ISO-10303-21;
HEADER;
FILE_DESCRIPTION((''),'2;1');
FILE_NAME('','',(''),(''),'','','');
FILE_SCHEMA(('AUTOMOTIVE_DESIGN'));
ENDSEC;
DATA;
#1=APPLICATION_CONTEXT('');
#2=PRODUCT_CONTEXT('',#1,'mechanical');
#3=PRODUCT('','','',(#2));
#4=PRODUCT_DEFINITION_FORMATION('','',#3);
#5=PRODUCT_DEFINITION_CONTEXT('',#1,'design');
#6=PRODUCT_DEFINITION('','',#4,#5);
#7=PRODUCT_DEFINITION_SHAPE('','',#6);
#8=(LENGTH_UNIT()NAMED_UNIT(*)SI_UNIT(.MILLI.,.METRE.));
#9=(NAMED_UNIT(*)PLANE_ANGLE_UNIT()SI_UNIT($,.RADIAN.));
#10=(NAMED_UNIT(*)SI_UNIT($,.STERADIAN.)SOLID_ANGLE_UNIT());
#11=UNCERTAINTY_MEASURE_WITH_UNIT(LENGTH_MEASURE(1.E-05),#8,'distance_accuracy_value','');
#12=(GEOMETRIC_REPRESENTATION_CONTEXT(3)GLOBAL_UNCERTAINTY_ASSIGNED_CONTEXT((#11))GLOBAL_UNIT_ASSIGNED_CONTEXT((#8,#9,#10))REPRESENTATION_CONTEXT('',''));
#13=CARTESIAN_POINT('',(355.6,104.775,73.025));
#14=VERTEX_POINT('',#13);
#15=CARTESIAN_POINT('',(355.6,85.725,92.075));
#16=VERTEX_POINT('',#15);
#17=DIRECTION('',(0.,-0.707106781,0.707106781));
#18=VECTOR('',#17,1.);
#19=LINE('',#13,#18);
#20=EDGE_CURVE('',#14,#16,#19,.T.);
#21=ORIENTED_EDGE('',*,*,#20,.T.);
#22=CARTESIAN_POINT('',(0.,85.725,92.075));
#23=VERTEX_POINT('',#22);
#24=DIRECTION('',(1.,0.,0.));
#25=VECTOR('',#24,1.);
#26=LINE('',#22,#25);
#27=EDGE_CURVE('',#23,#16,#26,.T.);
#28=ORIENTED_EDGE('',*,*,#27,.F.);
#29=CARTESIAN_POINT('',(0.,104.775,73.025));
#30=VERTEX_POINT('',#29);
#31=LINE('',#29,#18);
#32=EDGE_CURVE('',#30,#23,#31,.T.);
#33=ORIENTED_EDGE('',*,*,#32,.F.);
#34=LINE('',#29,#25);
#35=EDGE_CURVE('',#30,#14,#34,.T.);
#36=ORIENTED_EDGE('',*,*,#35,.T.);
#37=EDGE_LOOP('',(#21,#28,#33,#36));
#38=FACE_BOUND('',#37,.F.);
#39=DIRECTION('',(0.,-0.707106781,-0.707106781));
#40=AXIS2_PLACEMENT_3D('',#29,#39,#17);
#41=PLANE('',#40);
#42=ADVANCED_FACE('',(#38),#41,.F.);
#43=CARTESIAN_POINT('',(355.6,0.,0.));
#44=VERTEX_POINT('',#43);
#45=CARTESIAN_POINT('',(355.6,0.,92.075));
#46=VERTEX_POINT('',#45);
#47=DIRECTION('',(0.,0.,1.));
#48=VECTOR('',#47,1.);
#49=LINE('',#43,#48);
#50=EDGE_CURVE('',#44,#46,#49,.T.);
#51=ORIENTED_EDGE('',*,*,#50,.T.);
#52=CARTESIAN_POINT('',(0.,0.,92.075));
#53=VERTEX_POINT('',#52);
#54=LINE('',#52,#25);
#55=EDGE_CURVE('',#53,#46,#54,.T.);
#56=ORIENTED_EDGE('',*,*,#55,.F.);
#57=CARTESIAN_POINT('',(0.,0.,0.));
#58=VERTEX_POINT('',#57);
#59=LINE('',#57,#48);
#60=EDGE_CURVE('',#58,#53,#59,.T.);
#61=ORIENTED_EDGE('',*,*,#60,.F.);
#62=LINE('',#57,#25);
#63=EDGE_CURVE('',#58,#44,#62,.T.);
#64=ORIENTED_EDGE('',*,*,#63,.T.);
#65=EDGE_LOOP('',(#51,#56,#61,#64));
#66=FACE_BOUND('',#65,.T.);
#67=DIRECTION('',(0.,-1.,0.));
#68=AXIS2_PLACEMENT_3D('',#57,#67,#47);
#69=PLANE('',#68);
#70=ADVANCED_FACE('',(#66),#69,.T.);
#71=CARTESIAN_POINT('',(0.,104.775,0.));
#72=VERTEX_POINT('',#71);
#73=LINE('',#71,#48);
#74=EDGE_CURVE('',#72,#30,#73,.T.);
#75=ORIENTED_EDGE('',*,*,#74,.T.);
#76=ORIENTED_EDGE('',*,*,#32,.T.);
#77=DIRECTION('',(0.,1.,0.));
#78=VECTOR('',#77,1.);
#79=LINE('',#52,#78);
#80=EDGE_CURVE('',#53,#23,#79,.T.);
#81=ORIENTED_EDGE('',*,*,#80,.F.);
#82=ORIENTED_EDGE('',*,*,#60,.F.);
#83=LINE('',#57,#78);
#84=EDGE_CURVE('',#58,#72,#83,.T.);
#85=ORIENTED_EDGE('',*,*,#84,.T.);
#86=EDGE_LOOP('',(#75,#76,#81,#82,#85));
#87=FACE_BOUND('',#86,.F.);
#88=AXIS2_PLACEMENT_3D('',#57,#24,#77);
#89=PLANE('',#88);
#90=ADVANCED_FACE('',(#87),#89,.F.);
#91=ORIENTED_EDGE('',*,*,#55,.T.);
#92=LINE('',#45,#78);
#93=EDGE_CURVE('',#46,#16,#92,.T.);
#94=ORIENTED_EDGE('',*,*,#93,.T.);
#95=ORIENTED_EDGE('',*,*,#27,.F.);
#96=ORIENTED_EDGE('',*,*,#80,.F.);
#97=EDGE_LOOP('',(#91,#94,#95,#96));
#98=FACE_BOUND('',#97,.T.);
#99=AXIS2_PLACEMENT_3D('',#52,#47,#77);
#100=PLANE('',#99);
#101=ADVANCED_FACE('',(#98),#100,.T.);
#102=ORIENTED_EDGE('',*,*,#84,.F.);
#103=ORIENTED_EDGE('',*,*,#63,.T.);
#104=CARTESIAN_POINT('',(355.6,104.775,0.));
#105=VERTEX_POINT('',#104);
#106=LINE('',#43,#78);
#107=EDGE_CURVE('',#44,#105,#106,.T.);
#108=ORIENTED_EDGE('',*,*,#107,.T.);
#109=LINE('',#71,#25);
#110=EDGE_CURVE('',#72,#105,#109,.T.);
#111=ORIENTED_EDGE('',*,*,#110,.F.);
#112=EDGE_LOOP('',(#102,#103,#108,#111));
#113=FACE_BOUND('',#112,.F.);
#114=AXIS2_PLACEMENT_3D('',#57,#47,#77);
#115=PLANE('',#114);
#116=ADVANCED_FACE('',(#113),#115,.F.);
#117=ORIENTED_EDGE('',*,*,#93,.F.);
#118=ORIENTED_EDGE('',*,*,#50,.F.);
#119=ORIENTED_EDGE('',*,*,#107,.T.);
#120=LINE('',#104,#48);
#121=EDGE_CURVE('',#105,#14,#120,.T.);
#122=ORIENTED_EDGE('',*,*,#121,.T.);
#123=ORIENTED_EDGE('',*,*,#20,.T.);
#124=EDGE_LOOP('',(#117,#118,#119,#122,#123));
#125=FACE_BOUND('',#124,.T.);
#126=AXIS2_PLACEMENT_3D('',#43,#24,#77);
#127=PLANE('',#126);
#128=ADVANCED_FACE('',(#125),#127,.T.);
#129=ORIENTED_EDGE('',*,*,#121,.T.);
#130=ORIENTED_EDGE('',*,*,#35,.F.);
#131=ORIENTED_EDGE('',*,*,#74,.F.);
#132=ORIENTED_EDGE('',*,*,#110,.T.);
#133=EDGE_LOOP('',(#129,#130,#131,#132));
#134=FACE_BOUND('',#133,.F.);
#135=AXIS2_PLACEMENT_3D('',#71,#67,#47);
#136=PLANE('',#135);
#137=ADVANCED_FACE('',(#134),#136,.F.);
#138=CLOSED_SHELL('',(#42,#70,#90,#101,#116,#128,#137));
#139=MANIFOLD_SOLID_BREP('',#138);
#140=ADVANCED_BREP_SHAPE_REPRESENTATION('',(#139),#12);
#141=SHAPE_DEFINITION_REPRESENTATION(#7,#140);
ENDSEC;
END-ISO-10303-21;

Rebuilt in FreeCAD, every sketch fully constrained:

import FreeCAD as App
import Part
import Sketcher
Q = App.Units.Quantity


def add_polygon(sketch, points):
    """Adds a closed chain of lines whose ends are joined by coincident constraints."""
    first, n = sketch.GeometryCount, len(points)
    for a, b in zip(points, points[1:] + points[:1]):
        sketch.addGeometry(Part.LineSegment(App.Vector(*a, 0), App.Vector(*b, 0)), False)
    for i in range(n):
        sketch.addConstraint(Sketcher.Constraint("Coincident", first + i, 2, first + (i + 1) % n, 1))

doc = App.newDocument("Part")
body = doc.addObject("PartDesign::Body", "Body")

sketch1 = body.newObject("Sketcher::SketchObject", "Sketch")
sketch1.AttachmentSupport = (doc.getObject("YZ_Plane"), [""])
sketch1.MapMode = "FlatFace"
add_polygon(sketch1, [(0, 92), (0, 0), (105, 0), (105, 73), (86, 92)])
sketch1.addConstraint(Sketcher.Constraint("Vertical", 0))
sketch1.addConstraint(Sketcher.Constraint("Horizontal", 1))
sketch1.addConstraint(Sketcher.Constraint("Vertical", 2))
sketch1.addConstraint(Sketcher.Constraint("Horizontal", 4))
sketch1.addConstraint(Sketcher.Constraint("Coincident", 0, 2, -1, 1))
sketch1.addConstraint(Sketcher.Constraint("DistanceX", 1, 1, 1, 2, Q("4.125 in")))
sketch1.addConstraint(Sketcher.Constraint("DistanceX", 4, 2, 4, 1, Q("3.375 in")))
sketch1.addConstraint(Sketcher.Constraint("DistanceY", 0, 2, 0, 1, Q("3.625 in")))
sketch1.addConstraint(Sketcher.Constraint("DistanceY", 2, 1, 2, 2, Q("2.875 in")))
pad1 = body.newObject("PartDesign::Pad", "Pad")
pad1.Profile = sketch1
pad1.Length = Q("14 in")

doc.recompute()
